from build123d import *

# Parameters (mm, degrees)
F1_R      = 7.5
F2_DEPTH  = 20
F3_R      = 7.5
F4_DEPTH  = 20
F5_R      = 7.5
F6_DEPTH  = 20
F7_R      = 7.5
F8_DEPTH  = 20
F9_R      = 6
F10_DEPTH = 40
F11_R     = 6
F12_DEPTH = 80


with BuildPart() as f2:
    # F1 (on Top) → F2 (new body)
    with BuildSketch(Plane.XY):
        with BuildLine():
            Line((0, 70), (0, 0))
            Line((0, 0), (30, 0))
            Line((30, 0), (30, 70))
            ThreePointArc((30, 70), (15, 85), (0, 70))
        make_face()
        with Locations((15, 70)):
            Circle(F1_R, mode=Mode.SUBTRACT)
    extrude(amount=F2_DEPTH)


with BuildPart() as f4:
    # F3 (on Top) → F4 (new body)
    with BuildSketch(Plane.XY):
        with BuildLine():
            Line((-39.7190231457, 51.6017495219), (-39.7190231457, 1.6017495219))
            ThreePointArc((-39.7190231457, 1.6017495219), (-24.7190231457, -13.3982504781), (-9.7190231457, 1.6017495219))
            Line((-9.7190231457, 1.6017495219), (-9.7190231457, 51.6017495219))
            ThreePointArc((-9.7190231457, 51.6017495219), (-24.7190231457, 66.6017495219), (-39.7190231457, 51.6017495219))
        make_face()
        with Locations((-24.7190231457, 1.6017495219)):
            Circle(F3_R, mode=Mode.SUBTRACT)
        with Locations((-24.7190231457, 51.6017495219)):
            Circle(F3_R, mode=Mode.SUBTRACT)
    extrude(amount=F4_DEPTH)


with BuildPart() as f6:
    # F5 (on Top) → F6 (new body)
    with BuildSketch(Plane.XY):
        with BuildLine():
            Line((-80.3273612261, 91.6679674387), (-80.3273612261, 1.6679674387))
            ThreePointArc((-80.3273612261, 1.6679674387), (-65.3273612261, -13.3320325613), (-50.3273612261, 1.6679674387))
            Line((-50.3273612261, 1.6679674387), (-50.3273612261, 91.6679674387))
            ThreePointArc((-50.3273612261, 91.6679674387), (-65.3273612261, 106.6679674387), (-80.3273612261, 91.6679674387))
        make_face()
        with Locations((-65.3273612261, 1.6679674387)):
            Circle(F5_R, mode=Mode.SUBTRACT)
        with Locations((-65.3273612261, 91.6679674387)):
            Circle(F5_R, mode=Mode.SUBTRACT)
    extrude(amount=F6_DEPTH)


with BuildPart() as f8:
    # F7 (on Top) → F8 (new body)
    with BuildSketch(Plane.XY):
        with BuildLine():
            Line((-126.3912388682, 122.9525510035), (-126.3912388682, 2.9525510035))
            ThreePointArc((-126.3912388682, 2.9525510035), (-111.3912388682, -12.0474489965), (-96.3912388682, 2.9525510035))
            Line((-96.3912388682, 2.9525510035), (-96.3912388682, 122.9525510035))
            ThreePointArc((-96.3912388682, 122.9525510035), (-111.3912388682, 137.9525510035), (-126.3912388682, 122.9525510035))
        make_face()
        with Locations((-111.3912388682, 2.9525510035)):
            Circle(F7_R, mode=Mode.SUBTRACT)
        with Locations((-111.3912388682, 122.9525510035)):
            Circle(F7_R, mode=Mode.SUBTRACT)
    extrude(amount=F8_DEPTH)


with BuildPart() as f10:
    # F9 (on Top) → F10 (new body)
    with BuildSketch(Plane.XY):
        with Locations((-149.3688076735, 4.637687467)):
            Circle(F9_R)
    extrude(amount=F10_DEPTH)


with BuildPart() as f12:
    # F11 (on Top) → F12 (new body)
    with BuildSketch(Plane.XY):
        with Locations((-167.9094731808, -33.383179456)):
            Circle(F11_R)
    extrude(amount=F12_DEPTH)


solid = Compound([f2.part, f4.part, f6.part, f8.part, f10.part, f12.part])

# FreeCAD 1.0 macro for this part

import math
import FreeCAD as App
import Part
import Sketcher

V = App.Vector
Q = App.Units.Quantity

doc = App.newDocument("Part")
params = doc.addObject("Spreadsheet::Sheet", "Params")
for row, (alias, value) in enumerate([
    ("sketch1_diameter", "15 mm"),
    ("sketch1_radius", "15 mm"),
    ("sketch1_height", "70 mm"),
    ("pad1_length", "20 mm"),
    ("sketch2_diameter", "15 mm"),
    ("sketch2_radius", "15 mm"),
    ("sketch2_height", "50 mm"),
    ("pad2_length", "20 mm"),
    ("sketch3_diameter", "15 mm"),
    ("sketch3_radius", "15 mm"),
    ("sketch3_height", "90 mm"),
    ("pad3_length", "20 mm"),
    ("sketch4_diameter", "15 mm"),
    ("sketch4_radius", "15 mm"),
    ("sketch4_height", "120 mm"),
    ("pad4_length", "20 mm"),
    ("sketch5_diameter", "12 mm"),
    ("pad5_length", "40 mm"),
    ("sketch6_diameter", "12 mm"),
    ("pad6_length", "80 mm"),
], start=1):
    params.set(f"A{row}", alias)
    params.set(f"B{row}", "=" + value)
    params.setAlias(f"B{row}", alias)

body = doc.addObject("PartDesign::Body", "Body")

sketch1 = doc.addObject("Sketcher::SketchObject", "Sketch")
body.addObject(sketch1)
sketch1.AttachmentSupport = (doc.XY_Plane, [""])
sketch1.MapMode = "FlatFace"
sketch1.addGeometry([
    Part.LineSegment(V(0, 70, 0), V(0, 0, 0)),
    Part.LineSegment(V(0, 0, 0), V(30, 0, 0)),
    Part.LineSegment(V(30, 0, 0), V(30, 70, 0)),
    Part.ArcOfCircle(Part.Circle(V(15, 70, 0), V(0, 0, 1), 15), math.radians(0), math.radians(180)),
    Part.Circle(V(15, 70, 0), V(0, 0, 1), 8),
], False)
sketch1.addConstraint([
    Sketcher.Constraint("Coincident", 0, 2, 1, 1),
    Sketcher.Constraint("Coincident", 1, 2, 2, 1),
    Sketcher.Constraint("Tangent", 2, 2, 3, 1),
    Sketcher.Constraint("Tangent", 3, 2, 0, 1),
    Sketcher.Constraint("Vertical", 0),
    Sketcher.Constraint("Horizontal", 1),
    Sketcher.Constraint("Vertical", 2),
    Sketcher.Constraint("Coincident", 0, 2, -1, 1),
    Sketcher.Constraint("Coincident", 4, 3, 3, 3),
    Sketcher.Constraint("Diameter", 4, Q("15 mm")),
    Sketcher.Constraint("Radius", 3, Q("15 mm")),
    Sketcher.Constraint("DistanceY", 0, 2, 0, 1, Q("70 mm")),
])
sketch1.setExpression("Constraints[9]", "Params.sketch1_diameter")
sketch1.setExpression("Constraints[10]", "Params.sketch1_radius")
sketch1.setExpression("Constraints[11]", "Params.sketch1_height")
pad1 = doc.addObject("PartDesign::Pad", "Pad")
body.addObject(pad1)
pad1.Profile = sketch1
pad1.setExpression("Length", "Params.pad1_length")
body2 = doc.addObject("PartDesign::Body", "Body001")

sketch2 = doc.addObject("Sketcher::SketchObject", "Sketch001")
body2.addObject(sketch2)
sketch2.AttachmentSupport = (doc.getObject("XY_Plane001"), [""])
sketch2.MapMode = "FlatFace"
sketch2.addGeometry([
    Part.LineSegment(V(-40, 52, 0), V(-40, 2, 0)),
    Part.ArcOfCircle(Part.Circle(V(-25, 2, 0), V(0, 0, 1), 15), math.radians(180), math.radians(360)),
    Part.LineSegment(V(-10, 2, 0), V(-10, 52, 0)),
    Part.ArcOfCircle(Part.Circle(V(-25, 52, 0), V(0, 0, 1), 15), math.radians(0), math.radians(180)),
    Part.Circle(V(-25, 2, 0), V(0, 0, 1), 8),
    Part.Circle(V(-25, 52, 0), V(0, 0, 1), 8),
], False)
sketch2.addConstraint([
    Sketcher.Constraint("Tangent", 0, 2, 1, 1),
    Sketcher.Constraint("Tangent", 1, 2, 2, 1),
    Sketcher.Constraint("Tangent", 2, 2, 3, 1),
    Sketcher.Constraint("Tangent", 3, 2, 0, 1),
    Sketcher.Constraint("Vertical", 0),
    Sketcher.Constraint("Vertical", 2),
    Sketcher.Constraint("Coincident", 4, 3, 1, 3),
    Sketcher.Constraint("Coincident", 5, 3, 3, 3),
    Sketcher.Constraint("Equal", 4, 5),
    Sketcher.Constraint("Diameter", 4, Q("15 mm")),
    Sketcher.Constraint("Radius", 1, Q("15 mm")),
    Sketcher.Constraint("DistanceY", 0, 2, 0, 1, Q("50 mm")),
    Sketcher.Constraint("DistanceY", -1, 1, 1, 3, Q("1.60175 mm")),
    Sketcher.Constraint("DistanceX", 1, 3, -1, 1, Q("24.719023 mm")),
])
sketch2.setExpression("Constraints[9]", "Params.sketch2_diameter")
sketch2.setExpression("Constraints[10]", "Params.sketch2_radius")
sketch2.setExpression("Constraints[11]", "Params.sketch2_height")
pad2 = doc.addObject("PartDesign::Pad", "Pad001")
body2.addObject(pad2)
pad2.Profile = sketch2
pad2.setExpression("Length", "Params.pad2_length")
body3 = doc.addObject("PartDesign::Body", "Body002")

sketch3 = doc.addObject("Sketcher::SketchObject", "Sketch002")
body3.addObject(sketch3)
sketch3.AttachmentSupport = (doc.getObject("XY_Plane002"), [""])
sketch3.MapMode = "FlatFace"
sketch3.addGeometry([
    Part.LineSegment(V(-80, 92, 0), V(-80, 2, 0)),
    Part.ArcOfCircle(Part.Circle(V(-65, 2, 0), V(0, 0, 1), 15), math.radians(180), math.radians(360)),
    Part.LineSegment(V(-50, 2, 0), V(-50, 92, 0)),
    Part.ArcOfCircle(Part.Circle(V(-65, 92, 0), V(0, 0, 1), 15), math.radians(0), math.radians(180)),
    Part.Circle(V(-65, 2, 0), V(0, 0, 1), 8),
    Part.Circle(V(-65, 92, 0), V(0, 0, 1), 8),
], False)
sketch3.addConstraint([
    Sketcher.Constraint("Tangent", 0, 2, 1, 1),
    Sketcher.Constraint("Tangent", 1, 2, 2, 1),
    Sketcher.Constraint("Tangent", 2, 2, 3, 1),
    Sketcher.Constraint("Tangent", 3, 2, 0, 1),
    Sketcher.Constraint("Vertical", 0),
    Sketcher.Constraint("Vertical", 2),
    Sketcher.Constraint("Coincident", 4, 3, 1, 3),
    Sketcher.Constraint("Coincident", 5, 3, 3, 3),
    Sketcher.Constraint("Equal", 4, 5),
    Sketcher.Constraint("Diameter", 4, Q("15 mm")),
    Sketcher.Constraint("Radius", 1, Q("15 mm")),
    Sketcher.Constraint("DistanceY", 0, 2, 0, 1, Q("90 mm")),
    Sketcher.Constraint("DistanceX", 1, 3, -1, 1, Q("65.327361 mm")),
    Sketcher.Constraint("DistanceY", -1, 1, 1, 3, Q("1.667967 mm")),
])
sketch3.setExpression("Constraints[9]", "Params.sketch3_diameter")
sketch3.setExpression("Constraints[10]", "Params.sketch3_radius")
sketch3.setExpression("Constraints[11]", "Params.sketch3_height")
pad3 = doc.addObject("PartDesign::Pad", "Pad002")
body3.addObject(pad3)
pad3.Profile = sketch3
pad3.setExpression("Length", "Params.pad3_length")
body4 = doc.addObject("PartDesign::Body", "Body003")

sketch4 = doc.addObject("Sketcher::SketchObject", "Sketch003")
body4.addObject(sketch4)
sketch4.AttachmentSupport = (doc.getObject("XY_Plane003"), [""])
sketch4.MapMode = "FlatFace"
sketch4.addGeometry([
    Part.LineSegment(V(-126, 123, 0), V(-126, 3, 0)),
    Part.ArcOfCircle(Part.Circle(V(-111, 3, 0), V(0, 0, 1), 15), math.radians(180), math.radians(360)),
    Part.LineSegment(V(-96, 3, 0), V(-96, 123, 0)),
    Part.ArcOfCircle(Part.Circle(V(-111, 123, 0), V(0, 0, 1), 15), math.radians(0), math.radians(180)),
    Part.Circle(V(-111, 3, 0), V(0, 0, 1), 8),
    Part.Circle(V(-111, 123, 0), V(0, 0, 1), 8),
], False)
sketch4.addConstraint([
    Sketcher.Constraint("Tangent", 0, 2, 1, 1),
    Sketcher.Constraint("Tangent", 1, 2, 2, 1),
    Sketcher.Constraint("Tangent", 2, 2, 3, 1),
    Sketcher.Constraint("Tangent", 3, 2, 0, 1),
    Sketcher.Constraint("Vertical", 0),
    Sketcher.Constraint("Vertical", 2),
    Sketcher.Constraint("Coincident", 4, 3, 1, 3),
    Sketcher.Constraint("Coincident", 5, 3, 3, 3),
    Sketcher.Constraint("Equal", 4, 5),
    Sketcher.Constraint("Diameter", 4, Q("15 mm")),
    Sketcher.Constraint("Radius", 1, Q("15 mm")),
    Sketcher.Constraint("DistanceY", 0, 2, 0, 1, Q("120 mm")),
    Sketcher.Constraint("DistanceX", 1, 3, -1, 1, Q("111.391239 mm")),
    Sketcher.Constraint("DistanceY", -1, 1, 1, 3, Q("2.952551 mm")),
])
sketch4.setExpression("Constraints[9]", "Params.sketch4_diameter")
sketch4.setExpression("Constraints[10]", "Params.sketch4_radius")
sketch4.setExpression("Constraints[11]", "Params.sketch4_height")
pad4 = doc.addObject("PartDesign::Pad", "Pad003")
body4.addObject(pad4)
pad4.Profile = sketch4
pad4.setExpression("Length", "Params.pad4_length")
body5 = doc.addObject("PartDesign::Body", "Body004")

sketch5 = doc.addObject("Sketcher::SketchObject", "Sketch004")
body5.addObject(sketch5)
sketch5.AttachmentSupport = (doc.getObject("XY_Plane004"), [""])
sketch5.MapMode = "FlatFace"
sketch5.addGeometry(Part.Circle(V(-149, 5, 0), V(0, 0, 1), 6), False)
sketch5.addConstraint([
    Sketcher.Constraint("Diameter", 0, Q("12 mm")),
    Sketcher.Constraint("DistanceX", 0, 3, -1, 1, Q("149.368808 mm")),
    Sketcher.Constraint("DistanceY", -1, 1, 0, 3, Q("4.637687 mm")),
])
sketch5.setExpression("Constraints[0]", "Params.sketch5_diameter")
pad5 = doc.addObject("PartDesign::Pad", "Pad004")
body5.addObject(pad5)
pad5.Profile = sketch5
pad5.setExpression("Length", "Params.pad5_length")
body6 = doc.addObject("PartDesign::Body", "Body005")

sketch6 = doc.addObject("Sketcher::SketchObject", "Sketch005")
body6.addObject(sketch6)
sketch6.AttachmentSupport = (doc.getObject("XY_Plane005"), [""])
sketch6.MapMode = "FlatFace"
sketch6.addGeometry(Part.Circle(V(-168, -33, 0), V(0, 0, 1), 6), False)
sketch6.addConstraint([
    Sketcher.Constraint("Diameter", 0, Q("12 mm")),
    Sketcher.Constraint("DistanceY", 0, 3, -1, 1, Q("33.383179 mm")),
    Sketcher.Constraint("DistanceX", 0, 3, -1, 1, Q("167.909473 mm")),
])
sketch6.setExpression("Constraints[0]", "Params.sketch6_diameter")
pad6 = doc.addObject("PartDesign::Pad", "Pad005")
body6.addObject(pad6)
pad6.Profile = sketch6
pad6.setExpression("Length", "Params.pad6_length")

doc.recompute()
